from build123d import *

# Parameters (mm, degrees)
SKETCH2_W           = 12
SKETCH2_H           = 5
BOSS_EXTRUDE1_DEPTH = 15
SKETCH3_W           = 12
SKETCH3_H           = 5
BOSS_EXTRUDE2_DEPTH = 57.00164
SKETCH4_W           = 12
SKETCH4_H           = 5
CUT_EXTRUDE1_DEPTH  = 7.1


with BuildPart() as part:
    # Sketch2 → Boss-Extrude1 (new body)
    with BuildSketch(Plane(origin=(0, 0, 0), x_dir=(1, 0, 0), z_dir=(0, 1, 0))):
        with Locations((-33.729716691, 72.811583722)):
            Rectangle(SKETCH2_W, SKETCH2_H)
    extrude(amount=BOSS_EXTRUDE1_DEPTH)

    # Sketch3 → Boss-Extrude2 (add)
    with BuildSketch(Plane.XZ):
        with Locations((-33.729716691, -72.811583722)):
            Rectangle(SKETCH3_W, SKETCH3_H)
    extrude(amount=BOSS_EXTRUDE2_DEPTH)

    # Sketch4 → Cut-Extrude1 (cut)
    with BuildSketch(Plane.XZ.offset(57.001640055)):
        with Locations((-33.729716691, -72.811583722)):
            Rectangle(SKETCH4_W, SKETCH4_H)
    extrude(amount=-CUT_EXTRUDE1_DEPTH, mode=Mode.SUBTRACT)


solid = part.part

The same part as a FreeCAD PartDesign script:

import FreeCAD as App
import Part
import Sketcher
Q = App.Units.Quantity


def add_polygon(sketch, points):
    """Adds a closed chain of lines whose ends are joined by coincident constraints."""
    first, n = sketch.GeometryCount, len(points)
    for a, b in zip(points, points[1:] + points[:1]):
        sketch.addGeometry(Part.LineSegment(App.Vector(*a, 0), App.Vector(*b, 0)), False)
    for i in range(n):
        sketch.addConstraint(Sketcher.Constraint("Coincident", first + i, 2, first + (i + 1) % n, 1))

doc = App.newDocument("Part")
params = doc.addObject("Spreadsheet::Sheet", "Params")
for row, (alias, value) in enumerate([
    ("sketch1_width", "12 mm"),
    ("sketch1_height", "5 mm"),
    ("pad1_length", "15 mm"),
    ("sketch2_width", "12 mm"),
    ("sketch2_height", "5 mm"),
    ("pad2_length", "57.00164 mm"),
    ("sketch3_width", "12 mm"),
    ("sketch3_height", "5 mm"),
    ("pocket1_length", "7.1 mm"),
], start=1):
    params.set(f"A{row}", alias)
    params.set(f"B{row}", "=" + value)
    params.setAlias(f"B{row}", alias)

body = doc.addObject("PartDesign::Body", "Body")

# Sketch on XZ plane
sketch1 = doc.addObject("Sketcher::SketchObject", "Sketch")
body.addObject(sketch1)
sketch1.AttachmentSupport = (doc.XZ_Plane, [""])
sketch1.MapMode = "FlatFace"
add_polygon(sketch1, [(-39.729717, -75.311584), (-39.729717, -70.311584), (-27.729717, -70.311584), (-27.729717, -75.311584)])  # lines 0-3
sketch1.addConstraint([
    Sketcher.Constraint("Vertical", 0),
    Sketcher.Constraint("Horizontal", 1),
    Sketcher.Constraint("Vertical", 2),
    Sketcher.Constraint("Horizontal", 3),
    Sketcher.Constraint("DistanceX", 1, 1, 1, 2, Q("12 mm")),
    Sketcher.Constraint("DistanceY", 0, 1, 0, 2, Q("5 mm")),
    Sketcher.Constraint("DistanceX", 0, 2, -1, 1, Q("39.729717 mm")),
    Sketcher.Constraint("DistanceY", 0, 2, -1, 1, Q("70.311584 mm")),
])
sketch1.setExpression("Constraints[8]", "Params.sketch1_width")
sketch1.setExpression("Constraints[9]", "Params.sketch1_height")
pad1 = doc.addObject("PartDesign::Pad", "Pad")
body.addObject(pad1)
pad1.Profile = sketch1
pad1.setExpression("Length", "Params.pad1_length")
pad1.Reversed = True

# Sketch on XZ plane
sketch2 = doc.addObject("Sketcher::SketchObject", "Sketch001")
body.addObject(sketch2)
sketch2.AttachmentSupport = (doc.XZ_Plane, [""])
sketch2.MapMode = "FlatFace"
add_polygon(sketch2, [(-39.729717, -70.311584), (-39.729717, -75.311584), (-27.729717, -75.311584), (-27.729717, -70.311584)])  # lines 0-3
sketch2.addConstraint([
    Sketcher.Constraint("Vertical", 0),
    Sketcher.Constraint("Horizontal", 1),
    Sketcher.Constraint("Vertical", 2),
    Sketcher.Constraint("Horizontal", 3),
    Sketcher.Constraint("DistanceX", 1, 1, 1, 2, Q("12 mm")),
    Sketcher.Constraint("DistanceY", 0, 2, 0, 1, Q("5 mm")),
    Sketcher.Constraint("DistanceX", 0, 2, -1, 1, Q("39.729717 mm")),
    Sketcher.Constraint("DistanceY", 0, 2, -1, 1, Q("75.311584 mm")),
])
sketch2.setExpression("Constraints[8]", "Params.sketch2_width")
sketch2.setExpression("Constraints[9]", "Params.sketch2_height")
pad2 = doc.addObject("PartDesign::Pad", "Pad001")
body.addObject(pad2)
pad2.Profile = sketch2
pad2.setExpression("Length", "Params.pad2_length")

# Sketch on XZ plane
sketch3 = doc.addObject("Sketcher::SketchObject", "Sketch002")
body.addObject(sketch3)
sketch3.AttachmentSupport = (doc.XZ_Plane, [""])
sketch3.MapMode = "FlatFace"
sketch3.AttachmentOffset = App.Placement(App.Vector(0, 0, 57.00164), App.Rotation())
add_polygon(sketch3, [(-39.729717, -70.311584), (-39.729717, -75.311584), (-27.729717, -75.311584), (-27.729717, -70.311584)])  # lines 0-3
sketch3.addConstraint([
    Sketcher.Constraint("Vertical", 0),
    Sketcher.Constraint("Horizontal", 1),
    Sketcher.Constraint("Vertical", 2),
    Sketcher.Constraint("Horizontal", 3),
    Sketcher.Constraint("DistanceX", 1, 1, 1, 2, Q("12 mm")),
    Sketcher.Constraint("DistanceY", 0, 2, 0, 1, Q("5 mm")),
    Sketcher.Constraint("DistanceX", 0, 2, -1, 1, Q("39.729717 mm")),
    Sketcher.Constraint("DistanceY", 0, 2, -1, 1, Q("75.311584 mm")),
])
sketch3.setExpression("Constraints[8]", "Params.sketch3_width")
sketch3.setExpression("Constraints[9]", "Params.sketch3_height")
pocket1 = doc.addObject("PartDesign::Pocket", "Pocket")
body.addObject(pocket1)
pocket1.Profile = sketch3
pocket1.setExpression("Length", "Params.pocket1_length")

doc.recompute()
